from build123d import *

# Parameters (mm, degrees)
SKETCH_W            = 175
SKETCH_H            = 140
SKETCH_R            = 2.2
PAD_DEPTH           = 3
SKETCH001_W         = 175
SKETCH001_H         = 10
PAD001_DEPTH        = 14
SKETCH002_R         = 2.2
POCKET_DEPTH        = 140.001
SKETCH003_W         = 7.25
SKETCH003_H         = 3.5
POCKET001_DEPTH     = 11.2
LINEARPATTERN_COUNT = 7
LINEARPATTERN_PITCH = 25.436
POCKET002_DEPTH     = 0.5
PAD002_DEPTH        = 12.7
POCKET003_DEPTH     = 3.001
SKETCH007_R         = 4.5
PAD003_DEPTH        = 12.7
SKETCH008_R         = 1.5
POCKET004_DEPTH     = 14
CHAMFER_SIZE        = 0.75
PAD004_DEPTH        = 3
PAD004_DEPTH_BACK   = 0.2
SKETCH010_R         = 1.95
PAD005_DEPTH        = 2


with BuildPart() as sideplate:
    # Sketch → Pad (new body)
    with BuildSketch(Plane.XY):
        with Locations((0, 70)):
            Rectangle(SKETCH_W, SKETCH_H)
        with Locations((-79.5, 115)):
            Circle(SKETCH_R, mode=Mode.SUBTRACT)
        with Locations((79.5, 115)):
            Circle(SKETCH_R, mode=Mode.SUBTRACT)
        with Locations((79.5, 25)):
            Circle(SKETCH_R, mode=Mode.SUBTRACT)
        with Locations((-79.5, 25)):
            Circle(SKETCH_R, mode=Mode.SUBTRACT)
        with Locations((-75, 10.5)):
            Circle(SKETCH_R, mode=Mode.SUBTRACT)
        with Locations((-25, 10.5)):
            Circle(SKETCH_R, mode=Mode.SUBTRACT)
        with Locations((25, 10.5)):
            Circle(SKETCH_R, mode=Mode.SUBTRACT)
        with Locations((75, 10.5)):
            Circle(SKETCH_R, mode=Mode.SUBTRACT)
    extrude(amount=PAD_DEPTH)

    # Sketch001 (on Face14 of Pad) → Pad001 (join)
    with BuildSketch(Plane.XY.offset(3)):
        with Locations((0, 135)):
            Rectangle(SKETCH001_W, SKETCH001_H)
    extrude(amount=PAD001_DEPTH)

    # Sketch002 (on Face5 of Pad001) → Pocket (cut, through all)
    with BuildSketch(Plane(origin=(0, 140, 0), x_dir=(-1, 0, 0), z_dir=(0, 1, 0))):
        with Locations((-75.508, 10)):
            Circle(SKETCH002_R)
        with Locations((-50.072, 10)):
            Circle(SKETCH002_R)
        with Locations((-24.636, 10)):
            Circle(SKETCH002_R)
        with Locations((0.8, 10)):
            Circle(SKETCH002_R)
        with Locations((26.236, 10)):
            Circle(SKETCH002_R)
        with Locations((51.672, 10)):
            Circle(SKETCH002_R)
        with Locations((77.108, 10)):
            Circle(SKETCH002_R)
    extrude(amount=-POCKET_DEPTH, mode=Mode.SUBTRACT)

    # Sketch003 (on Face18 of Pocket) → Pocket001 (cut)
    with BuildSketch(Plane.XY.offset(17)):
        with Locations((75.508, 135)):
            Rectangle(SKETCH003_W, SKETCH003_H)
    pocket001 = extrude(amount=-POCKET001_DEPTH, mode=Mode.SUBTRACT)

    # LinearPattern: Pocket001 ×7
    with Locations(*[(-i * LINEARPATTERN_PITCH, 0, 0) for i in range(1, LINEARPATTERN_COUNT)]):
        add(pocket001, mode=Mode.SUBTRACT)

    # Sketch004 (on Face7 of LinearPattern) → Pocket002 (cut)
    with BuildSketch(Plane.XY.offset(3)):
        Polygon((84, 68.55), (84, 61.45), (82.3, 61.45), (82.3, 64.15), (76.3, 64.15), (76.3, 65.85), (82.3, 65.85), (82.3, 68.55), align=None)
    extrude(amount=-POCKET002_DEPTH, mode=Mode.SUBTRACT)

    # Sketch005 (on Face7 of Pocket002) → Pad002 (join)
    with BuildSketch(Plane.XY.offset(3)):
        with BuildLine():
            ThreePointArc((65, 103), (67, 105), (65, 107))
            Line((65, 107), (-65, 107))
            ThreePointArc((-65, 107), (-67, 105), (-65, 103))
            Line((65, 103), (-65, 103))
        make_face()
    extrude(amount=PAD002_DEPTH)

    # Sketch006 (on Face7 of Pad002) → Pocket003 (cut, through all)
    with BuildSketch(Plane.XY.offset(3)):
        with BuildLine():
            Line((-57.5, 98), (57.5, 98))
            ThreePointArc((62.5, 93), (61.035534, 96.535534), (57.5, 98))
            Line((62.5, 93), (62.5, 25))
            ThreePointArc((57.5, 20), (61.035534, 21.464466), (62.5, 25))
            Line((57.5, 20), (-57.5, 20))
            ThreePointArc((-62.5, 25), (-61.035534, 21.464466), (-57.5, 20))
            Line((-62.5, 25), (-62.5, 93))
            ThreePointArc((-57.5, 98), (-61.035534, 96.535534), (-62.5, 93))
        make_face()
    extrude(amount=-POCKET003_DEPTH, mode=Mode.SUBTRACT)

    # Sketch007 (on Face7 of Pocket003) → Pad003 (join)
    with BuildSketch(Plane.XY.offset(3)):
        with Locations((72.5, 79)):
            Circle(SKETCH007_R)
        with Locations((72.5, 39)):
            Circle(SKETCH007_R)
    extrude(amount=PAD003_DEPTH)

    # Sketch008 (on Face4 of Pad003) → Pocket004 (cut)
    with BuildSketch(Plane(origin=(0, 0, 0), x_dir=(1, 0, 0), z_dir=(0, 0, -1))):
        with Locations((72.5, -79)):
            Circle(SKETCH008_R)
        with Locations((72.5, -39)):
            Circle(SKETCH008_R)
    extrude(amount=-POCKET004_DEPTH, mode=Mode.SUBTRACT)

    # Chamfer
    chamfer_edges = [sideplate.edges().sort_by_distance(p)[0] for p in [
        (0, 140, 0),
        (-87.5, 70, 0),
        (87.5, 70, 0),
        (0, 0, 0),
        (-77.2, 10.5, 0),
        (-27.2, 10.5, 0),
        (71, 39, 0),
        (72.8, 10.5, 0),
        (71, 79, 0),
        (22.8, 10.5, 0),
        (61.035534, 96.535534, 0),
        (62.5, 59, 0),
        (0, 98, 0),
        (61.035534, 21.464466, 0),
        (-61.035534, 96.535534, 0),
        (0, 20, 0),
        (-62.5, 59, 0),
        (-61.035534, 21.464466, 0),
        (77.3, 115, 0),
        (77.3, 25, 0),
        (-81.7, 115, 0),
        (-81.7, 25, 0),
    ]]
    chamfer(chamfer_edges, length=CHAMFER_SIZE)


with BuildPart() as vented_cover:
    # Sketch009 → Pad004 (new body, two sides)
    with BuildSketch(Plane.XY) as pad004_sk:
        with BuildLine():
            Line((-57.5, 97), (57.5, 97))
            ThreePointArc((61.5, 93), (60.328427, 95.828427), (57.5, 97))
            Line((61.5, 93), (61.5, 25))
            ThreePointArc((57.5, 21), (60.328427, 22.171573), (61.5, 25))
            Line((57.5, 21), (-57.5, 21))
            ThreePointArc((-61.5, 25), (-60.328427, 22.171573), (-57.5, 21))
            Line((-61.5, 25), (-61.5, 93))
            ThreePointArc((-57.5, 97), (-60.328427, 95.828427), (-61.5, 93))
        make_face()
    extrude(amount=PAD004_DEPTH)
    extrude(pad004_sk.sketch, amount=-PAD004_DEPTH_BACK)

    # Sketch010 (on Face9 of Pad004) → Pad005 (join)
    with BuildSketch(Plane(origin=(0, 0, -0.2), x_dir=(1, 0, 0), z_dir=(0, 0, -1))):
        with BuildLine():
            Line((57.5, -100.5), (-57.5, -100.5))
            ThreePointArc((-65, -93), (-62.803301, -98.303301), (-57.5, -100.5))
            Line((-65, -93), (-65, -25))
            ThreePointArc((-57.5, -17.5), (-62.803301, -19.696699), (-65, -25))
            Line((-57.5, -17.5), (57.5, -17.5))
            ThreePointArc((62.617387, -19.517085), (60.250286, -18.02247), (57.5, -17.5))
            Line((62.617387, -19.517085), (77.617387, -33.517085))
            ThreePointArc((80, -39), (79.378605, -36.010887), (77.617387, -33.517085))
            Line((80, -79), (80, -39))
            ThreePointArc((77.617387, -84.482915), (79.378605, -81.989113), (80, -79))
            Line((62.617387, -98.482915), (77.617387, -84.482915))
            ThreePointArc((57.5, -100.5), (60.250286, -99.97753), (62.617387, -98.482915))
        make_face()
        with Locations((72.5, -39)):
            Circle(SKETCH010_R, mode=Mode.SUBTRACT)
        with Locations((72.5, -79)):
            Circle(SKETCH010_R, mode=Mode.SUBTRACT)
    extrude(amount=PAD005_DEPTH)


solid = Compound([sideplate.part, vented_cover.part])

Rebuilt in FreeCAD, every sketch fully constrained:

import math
import FreeCAD as App
import Part
import Sketcher
from FreeCAD import Vector
Q = App.Units.Quantity


def edges_at(feature, points):
    """Names of the edges that pass closest to the given points."""
    edges = feature.Shape.Edges
    near = lambda p: min(range(len(edges)), key=lambda i: edges[i].distToShape(Part.Vertex(*p))[0])
    return sorted({f"Edge{near(p) + 1}" for p in points})


def add_polygon(sketch, points):
    """Adds a closed chain of lines whose ends are joined by coincident constraints."""
    first, n = sketch.GeometryCount, len(points)
    for a, b in zip(points, points[1:] + points[:1]):
        sketch.addGeometry(Part.LineSegment(App.Vector(*a, 0), App.Vector(*b, 0)), False)
    for i in range(n):
        sketch.addConstraint(Sketcher.Constraint("Coincident", first + i, 2, first + (i + 1) % n, 1))

doc = App.newDocument("Part")
body = doc.addObject("PartDesign::Body", "Body")

sketch1 = body.newObject("Sketcher::SketchObject", "Sketch")
sketch1.AttachmentSupport = (doc.getObject("XY_Plane"), [""])
sketch1.MapMode = "FlatFace"
add_polygon(sketch1, [(-87.5, 140), (-87.5, 0), (87.5, 0), (87.5, 140)])
sketch1.addGeometry(Part.Circle(Vector(-75, 10.5, 0), Vector(0, 0, 1), 2.2), False)
sketch1.addGeometry(Part.Circle(Vector(-79.5, 25, 0), Vector(0, 0, 1), 2.2), False)
sketch1.addGeometry(Part.Circle(Vector(-25, 10.5, 0), Vector(0, 0, 1), 2.2), False)
sketch1.addGeometry(Part.Circle(Vector(25, 10.5, 0), Vector(0, 0, 1), 2.2), False)
sketch1.addGeometry(Part.Circle(Vector(75, 10.5, 0), Vector(0, 0, 1), 2.2), False)
sketch1.addGeometry(Part.Circle(Vector(79.5, 25, 0), Vector(0, 0, 1), 2.2), False)
sketch1.addGeometry(Part.Circle(Vector(-79.5, 115, 0), Vector(0, 0, 1), 2.2), False)
sketch1.addGeometry(Part.Circle(Vector(79.5, 115, 0), Vector(0, 0, 1), 2.2), False)
sketch1.addConstraint([
    Sketcher.Constraint("Vertical", 0),
    Sketcher.Constraint("Horizontal", 1),
    Sketcher.Constraint("Vertical", 2),
    Sketcher.Constraint("Horizontal", 3),
    Sketcher.Constraint("Equal", 4, 5),
    Sketcher.Constraint("Equal", 5, 6),
    Sketcher.Constraint("Equal", 6, 7),
    Sketcher.Constraint("Equal", 7, 8),
    Sketcher.Constraint("Equal", 8, 9),
    Sketcher.Constraint("Equal", 9, 10),
    Sketcher.Constraint("Equal", 10, 11),
    Sketcher.Constraint("Symmetric", 0, 2, 1, 2, -1, 1),
    Sketcher.Constraint("Symmetric", 6, 3, 7, 3, -2),
    Sketcher.Constraint("Symmetric", 4, 3, 8, 3, -2),
    Sketcher.Constraint("Symmetric", 5, 3, 9, 3, -2),
    Sketcher.Constraint("Symmetric", 10, 3, 11, 3, -2),
    Sketcher.Constraint("Horizontal", 4, 3, 6, 3),
    Sketcher.Constraint("Vertical", 5, 3, 10, 3),
    Sketcher.Constraint("Diameter", 4, Q("4.4 mm")),
    Sketcher.Constraint("DistanceX", 1, 1, 1, 2, Q("175 mm")),
    Sketcher.Constraint("DistanceY", 0, 2, 0, 1, Q("140 mm")),
    Sketcher.Constraint("DistanceX", 4, 3, -1, 1, Q("75 mm")),
    Sketcher.Constraint("DistanceY", -1, 1, 5, 3, Q("25 mm")),
    Sketcher.Constraint("DistanceX", 6, 3, -1, 1, Q("25 mm")),
    Sketcher.Constraint("DistanceY", -1, 1, 10, 3, Q("115 mm")),
    Sketcher.Constraint("DistanceX", 5, 3, 9, 3, Q("159 mm")),
    Sketcher.Constraint("DistanceY", -1, 1, 4, 3, Q("10.5 mm")),
])
pad1 = body.newObject("PartDesign::Pad", "Pad")
pad1.Profile = sketch1
pad1.Length = 3

sketch2 = body.newObject("Sketcher::SketchObject", "Sketch001")
sketch2.AttachmentSupport = (doc.getObject("XY_Plane"), [""])
sketch2.MapMode = "FlatFace"
sketch2.AttachmentOffset = App.Placement(Vector(0, 0, 3), App.Rotation())
add_polygon(sketch2, [(-87.5, 140), (-87.5, 130), (87.5, 130), (87.5, 140)])
sketch2.addConstraint([
    Sketcher.Constraint("Vertical", 0),
    Sketcher.Constraint("Horizontal", 1),
    Sketcher.Constraint("Vertical", 2),
    Sketcher.Constraint("Horizontal", 3),
    Sketcher.Constraint("DistanceX", 1, 1, 1, 2, Q("175 mm")),
    Sketcher.Constraint("DistanceY", 0, 2, 0, 1, Q("10 mm")),
    Sketcher.Constraint("DistanceY", -1, 1, 0, 2, Q("130 mm")),
    Sketcher.Constraint("DistanceX", 0, 2, -1, 1, Q("87.5 mm")),
])
pad2 = body.newObject("PartDesign::Pad", "Pad001")
pad2.Profile = sketch2
pad2.Length = 14

sketch3 = body.newObject("Sketcher::SketchObject", "Sketch002")
sketch3.AttachmentSupport = (doc.getObject("XZ_Plane"), [""])
sketch3.MapMode = "FlatFace"
sketch3.AttachmentOffset = App.Placement(Vector(0, 0, -140), App.Rotation())
sketch3.addGeometry([
    Part.Circle(Vector(75.508, 10, 0), Vector(0, 0, 1), 2.2),
    Part.Circle(Vector(50.072, 10, 0), Vector(0, 0, 1), 2.2),
    Part.Circle(Vector(24.636, 10, 0), Vector(0, 0, 1), 2.2),
    Part.Circle(Vector(-0.8, 10, 0), Vector(0, 0, 1), 2.2),
    Part.Circle(Vector(-26.236, 10, 0), Vector(0, 0, 1), 2.2),
    Part.Circle(Vector(-51.672, 10, 0), Vector(0, 0, 1), 2.2),
    Part.Circle(Vector(-77.108, 10, 0), Vector(0, 0, 1), 2.2),
], False)
sketch3.addConstraint([
    Sketcher.Constraint("Equal", 0, 1),
    Sketcher.Constraint("Equal", 1, 2),
    Sketcher.Constraint("Equal", 2, 3),
    Sketcher.Constraint("Equal", 3, 4),
    Sketcher.Constraint("Equal", 4, 5),
    Sketcher.Constraint("Equal", 5, 6),
    Sketcher.Constraint("Horizontal", 0, 3, 1, 3),
    Sketcher.Constraint("Horizontal", 1, 3, 2, 3),
    Sketcher.Constraint("Horizontal", 2, 3, 3, 3),
    Sketcher.Constraint("Horizontal", 3, 3, 4, 3),
    Sketcher.Constraint("Horizontal", 4, 3, 5, 3),
    Sketcher.Constraint("Horizontal", 5, 3, 6, 3),
    Sketcher.Constraint("Diameter", 0, Q("4.4 mm")),
    Sketcher.Constraint("DistanceY", -1, 1, 0, 3, Q("10 mm")),
    Sketcher.Constraint("DistanceX", 3, 3, -1, 1, Q("0.8 mm")),
    Sketcher.Constraint("DistanceX", 5, 3, 0, 3, Q("127.18 mm")),
    Sketcher.Constraint("DistanceX", 6, 3, 1, 3, Q("127.18 mm")),
    Sketcher.Constraint("DistanceX", -1, 1, 0, 3, Q("75.508 mm")),
    Sketcher.Constraint("DistanceX", -1, 1, 1, 3, Q("50.072 mm")),
    Sketcher.Constraint("DistanceX", -1, 1, 2, 3, Q("24.636 mm")),
    Sketcher.Constraint("DistanceX", 4, 3, -1, 1, Q("26.236 mm")),
])
pocket1 = body.newObject("PartDesign::Pocket", "Pocket")
pocket1.Profile = sketch3
pocket1.Type = "ThroughAll"
pocket1.Reversed = True

sketch4 = body.newObject("Sketcher::SketchObject", "Sketch003")
sketch4.AttachmentSupport = (doc.getObject("XY_Plane"), [""])
sketch4.MapMode = "FlatFace"
sketch4.AttachmentOffset = App.Placement(Vector(0, 0, 17), App.Rotation())
add_polygon(sketch4, [(71.883, 136.75), (71.883, 133.25), (79.133, 133.25), (79.133, 136.75)])
sketch4.addConstraint([
    Sketcher.Constraint("Vertical", 0),
    Sketcher.Constraint("Horizontal", 1),
    Sketcher.Constraint("Vertical", 2),
    Sketcher.Constraint("Horizontal", 3),
    Sketcher.Constraint("DistanceY", 0, 2, 0, 1, Q("3.5 mm")),
    Sketcher.Constraint("DistanceX", 1, 1, 1, 2, Q("7.25 mm")),
    Sketcher.Constraint("DistanceY", -1, 1, 0, 2, Q("133.25 mm")),
    Sketcher.Constraint("DistanceX", -1, 1, 0, 2, Q("71.883 mm")),
])
pocket2 = body.newObject("PartDesign::Pocket", "Pocket001")
pocket2.Profile = sketch4
pocket2.Length = 11.2
doc.recompute()

linearpattern = body.newObject("PartDesign::LinearPattern", "LinearPattern")
linearpattern.Originals = [pocket2]
linearpattern.Direction = (doc.getObject("X_Axis"), [""])
linearpattern.Mode = "offset"
linearpattern.Offset = 25.436
linearpattern.Occurrences = 7
linearpattern.Reversed = True
body.Tip = linearpattern

sketch5 = body.newObject("Sketcher::SketchObject", "Sketch004")
sketch5.AttachmentSupport = (doc.getObject("XY_Plane"), [""])
sketch5.MapMode = "FlatFace"
sketch5.AttachmentOffset = App.Placement(Vector(0, 0, 3), App.Rotation())
add_polygon(sketch5, [(84, 61.45), (84, 68.55), (82.3, 68.55), (82.3, 65.85), (76.3, 65.85), (76.3, 64.15), (82.3, 64.15), (82.3, 61.45)])
sketch5.addConstraint([
    Sketcher.Constraint("Vertical", 0),
    Sketcher.Constraint("Horizontal", 1),
    Sketcher.Constraint("Vertical", 2),
    Sketcher.Constraint("Horizontal", 3),
    Sketcher.Constraint("Vertical", 4),
    Sketcher.Constraint("Horizontal", 5),
    Sketcher.Constraint("Vertical", 6),
    Sketcher.Constraint("Horizontal", 7),
    Sketcher.Constraint("Vertical", 2, 2, 5, 2),
    Sketcher.Constraint("Equal", 7, 4),
    Sketcher.Constraint("Equal", 2, 6),
    Sketcher.Constraint("DistanceX", 3, 2, 3, 1, Q("6 mm")),
    Sketcher.Constraint("DistanceX", 1, 2, 1, 1, Q("1.7 mm")),
    Sketcher.Constraint("DistanceY", 0, 1, 0, 2, Q("7.1 mm")),
    Sketcher.Constraint("DistanceX", -1, 1, 0, 2, Q("84 mm")),
    Sketcher.Constraint("DistanceY", -1, 1, 0, 2, Q("68.55 mm")),
])
pocket3 = body.newObject("PartDesign::Pocket", "Pocket002")
pocket3.Profile = sketch5
pocket3.Length = 0.5

sketch6 = body.newObject("Sketcher::SketchObject", "Sketch005")
sketch6.AttachmentSupport = (doc.getObject("XY_Plane"), [""])
sketch6.MapMode = "FlatFace"
sketch6.AttachmentOffset = App.Placement(Vector(0, 0, 3), App.Rotation())
sketch6.addGeometry([
    Part.ArcOfCircle(Part.Circle(Vector(65, 105, 0), Vector(0, 0, 1), 2), math.radians(-90), math.radians(90)),
    Part.LineSegment(Vector(65, 107, 0), Vector(-65, 107, 0)),
    Part.ArcOfCircle(Part.Circle(Vector(-65, 105, 0), Vector(0, 0, 1), 2), math.radians(90), math.radians(270)),
    Part.LineSegment(Vector(-65, 103, 0), Vector(65, 103, 0)),
], False)
sketch6.addConstraint([
    Sketcher.Constraint("Tangent", 0, 2, 1, 1),
    Sketcher.Constraint("Tangent", 1, 2, 2, 1),
    Sketcher.Constraint("Tangent", 2, 2, 3, 1),
    Sketcher.Constraint("Tangent", 3, 2, 0, 1),
    Sketcher.Constraint("Horizontal", 1),
    Sketcher.Constraint("Horizontal", 3),
    Sketcher.Constraint("Radius", 0, Q("2 mm")),
    Sketcher.Constraint("DistanceX", 1, 2, 1, 1, Q("130 mm")),
    Sketcher.Constraint("DistanceX", -1, 1, 0, 3, Q("65 mm")),
    Sketcher.Constraint("DistanceY", -1, 1, 0, 3, Q("105 mm")),
])
pad3 = body.newObject("PartDesign::Pad", "Pad002")
pad3.Profile = sketch6
pad3.Length = 12.7

sketch7 = body.newObject("Sketcher::SketchObject", "Sketch006")
sketch7.AttachmentSupport = (doc.getObject("XY_Plane"), [""])
sketch7.MapMode = "FlatFace"
sketch7.AttachmentOffset = App.Placement(Vector(0, 0, 3), App.Rotation())
sketch7.addGeometry([
    Part.LineSegment(Vector(57.5, 98, 0), Vector(-57.5, 98, 0)),
    Part.ArcOfCircle(Part.Circle(Vector(-57.5, 93, 0), Vector(0, 0, 1), 5), math.radians(89.999996), math.radians(180.000004)),
    Part.LineSegment(Vector(-62.5, 93, 0), Vector(-62.5, 25, 0)),
    Part.ArcOfCircle(Part.Circle(Vector(-57.5, 25, 0), Vector(0, 0, 1), 5), math.radians(179.999996), math.radians(270.000004)),
    Part.LineSegment(Vector(-57.5, 20, 0), Vector(57.5, 20, 0)),
    Part.ArcOfCircle(Part.Circle(Vector(57.5, 25, 0), Vector(0, 0, 1), 5), math.radians(-90.000004), math.radians(0.000004)),
    Part.LineSegment(Vector(62.5, 25, 0), Vector(62.5, 93, 0)),
    Part.ArcOfCircle(Part.Circle(Vector(57.5, 93, 0), Vector(0, 0, 1), 5), math.radians(-0.000004), math.radians(90.000004)),
], False)
sketch7.addConstraint([
    Sketcher.Constraint("Tangent", 0, 2, 1, 1),
    Sketcher.Constraint("Tangent", 1, 2, 2, 1),
    Sketcher.Constraint("Tangent", 2, 2, 3, 1),
    Sketcher.Constraint("Tangent", 3, 2, 4, 1),
    Sketcher.Constraint("Tangent", 4, 2, 5, 1),
    Sketcher.Constraint("Tangent", 5, 2, 6, 1),
    Sketcher.Constraint("Tangent", 6, 2, 7, 1),
    Sketcher.Constraint("Tangent", 7, 2, 0, 1),
    Sketcher.Constraint("Horizontal", 0),
    Sketcher.Constraint("Vertical", 2),
    Sketcher.Constraint("Horizontal", 4),
    Sketcher.Constraint("Vertical", 6),
    Sketcher.Constraint("Equal", 1, 3),
    Sketcher.Constraint("Equal", 3, 5),
    Sketcher.Constraint("Equal", 5, 7),
    Sketcher.Constraint("Radius", 1, Q("5 mm")),
    Sketcher.Constraint("DistanceX", 0, 2, 0, 1, Q("115 mm")),
    Sketcher.Constraint("DistanceY", 2, 2, 2, 1, Q("68 mm")),
    Sketcher.Constraint("DistanceY", -1, 1, 1, 3, Q("93 mm")),
    Sketcher.Constraint("DistanceX", 1, 3, -1, 1, Q("57.5 mm")),
])
pocket4 = body.newObject("PartDesign::Pocket", "Pocket003")
pocket4.Profile = sketch7
pocket4.Type = "ThroughAll"

sketch8 = body.newObject("Sketcher::SketchObject", "Sketch007")
sketch8.AttachmentSupport = (doc.getObject("XY_Plane"), [""])
sketch8.MapMode = "FlatFace"
sketch8.AttachmentOffset = App.Placement(Vector(0, 0, 3), App.Rotation())
sketch8.addGeometry([
    Part.Circle(Vector(72.5, 79, 0), Vector(0, 0, 1), 4.5),
    Part.Circle(Vector(72.5, 39, 0), Vector(0, 0, 1), 4.5),
], False)
sketch8.addConstraint([
    Sketcher.Constraint("Equal", 0, 1),
    Sketcher.Constraint("Vertical", 0, 3, 1, 3),
    Sketcher.Constraint("Diameter", 0, Q("9 mm")),
    Sketcher.Constraint("DistanceY", -1, 1, 0, 3, Q("79 mm")),
    Sketcher.Constraint("DistanceY", -1, 1, 1, 3, Q("39 mm")),
    Sketcher.Constraint("DistanceX", -1, 1, 0, 3, Q("72.5 mm")),
])
pad4 = body.newObject("PartDesign::Pad", "Pad003")
pad4.Profile = sketch8
pad4.Length = 12.7

sketch9 = body.newObject("Sketcher::SketchObject", "Sketch008")
sketch9.AttachmentSupport = (doc.getObject("XY_Plane"), [""])
sketch9.MapMode = "FlatFace"
sketch9.addGeometry([
    Part.Circle(Vector(72.5, 79, 0), Vector(0, 0, 1), 1.5),
    Part.Circle(Vector(72.5, 39, 0), Vector(0, 0, 1), 1.5),
], False)
sketch9.addConstraint([
    Sketcher.Constraint("Equal", 0, 1),
    Sketcher.Constraint("Vertical", 0, 3, 1, 3),
    Sketcher.Constraint("Diameter", 0, Q("3 mm")),
    Sketcher.Constraint("DistanceY", -1, 1, 0, 3, Q("79 mm")),
    Sketcher.Constraint("DistanceY", -1, 1, 1, 3, Q("39 mm")),
    Sketcher.Constraint("DistanceX", -1, 1, 0, 3, Q("72.5 mm")),
])
pocket5 = body.newObject("PartDesign::Pocket", "Pocket004")
pocket5.Profile = sketch9
pocket5.Length = 14
pocket5.Reversed = True
doc.recompute()

chamfer = body.newObject("PartDesign::Chamfer", "Chamfer")
chamfer.Base = (pocket5, edges_at(pocket5, [
    (0, 140, 0),
    (-87.5, 70, 0),
    (87.5, 70, 0),
    (0, 0, 0),
    (-77.2, 10.5, 0),
    (-27.2, 10.5, 0),
    (71, 39, 0),
    (72.8, 10.5, 0),
    (71, 79, 0),
    (22.8, 10.5, 0),
    (61.036, 96.536, 0),
    (62.5, 59, 0),
    (0, 98, 0),
    (61.036, 21.464, 0),
    (-61.036, 96.536, 0),
    (0, 20, 0),
    (-62.5, 59, 0),
    (-61.036, 21.464, 0),
    (77.3, 115, 0),
    (77.3, 25, 0),
    (-81.7, 115, 0),
    (-81.7, 25, 0),
]))
chamfer.Size = 0.75
body2 = doc.addObject("PartDesign::Body", "Body001")

sketch10 = body2.newObject("Sketcher::SketchObject", "Sketch009")
sketch10.AttachmentSupport = (doc.getObject("XY_Plane001"), [""])
sketch10.MapMode = "FlatFace"
sketch10.addGeometry([
    Part.LineSegment(Vector(57.5, 97, 0), Vector(-57.5, 97, 0)),
    Part.ArcOfCircle(Part.Circle(Vector(-57.5, 93, 0), Vector(0, 0, 1), 4), math.radians(90.000006), math.radians(179.999994)),
    Part.LineSegment(Vector(-61.5, 93, 0), Vector(-61.5, 25, 0)),
    Part.ArcOfCircle(Part.Circle(Vector(-57.5, 25, 0), Vector(0, 0, 1), 4), math.radians(-179.999994), math.radians(-90.000006)),
    Part.LineSegment(Vector(-57.5, 21, 0), Vector(57.5, 21, 0)),
    Part.ArcOfCircle(Part.Circle(Vector(57.5, 25, 0), Vector(0, 0, 1), 4), math.radians(-89.999994), math.radians(-0.000006)),
    Part.LineSegment(Vector(61.5, 25, 0), Vector(61.5, 93, 0)),
    Part.ArcOfCircle(Part.Circle(Vector(57.5, 93, 0), Vector(0, 0, 1), 4), math.radians(0.000006), math.radians(89.999994)),
], False)
sketch10.addConstraint([
    Sketcher.Constraint("Tangent", 0, 2, 1, 1),
    Sketcher.Constraint("Tangent", 1, 2, 2, 1),
    Sketcher.Constraint("Tangent", 2, 2, 3, 1),
    Sketcher.Constraint("Tangent", 3, 2, 4, 1),
    Sketcher.Constraint("Tangent", 4, 2, 5, 1),
    Sketcher.Constraint("Tangent", 5, 2, 6, 1),
    Sketcher.Constraint("Tangent", 6, 2, 7, 1),
    Sketcher.Constraint("Tangent", 7, 2, 0, 1),
    Sketcher.Constraint("Horizontal", 0),
    Sketcher.Constraint("Vertical", 2),
    Sketcher.Constraint("Horizontal", 4),
    Sketcher.Constraint("Vertical", 6),
    Sketcher.Constraint("Equal", 1, 3),
    Sketcher.Constraint("Equal", 3, 5),
    Sketcher.Constraint("Equal", 5, 7),
    Sketcher.Constraint("Radius", 1, Q("4 mm")),
    Sketcher.Constraint("DistanceX", 0, 2, 0, 1, Q("115 mm")),
    Sketcher.Constraint("DistanceY", 2, 2, 2, 1, Q("68 mm")),
    Sketcher.Constraint("DistanceY", -1, 1, 1, 3, Q("93 mm")),
    Sketcher.Constraint("DistanceX", 1, 3, -1, 1, Q("57.5 mm")),
])
pad5 = body2.newObject("PartDesign::Pad", "Pad004")
pad5.Profile = sketch10
pad5.Type = "TwoLengths"
pad5.Length = 3
pad5.Length2 = 0.2

sketch11 = body2.newObject("Sketcher::SketchObject", "Sketch010")
sketch11.AttachmentSupport = (doc.getObject("XY_Plane001"), [""])
sketch11.MapMode = "FlatFace"
sketch11.AttachmentOffset = App.Placement(Vector(0, 0, -0.2), App.Rotation())
sketch11.addGeometry([
    Part.LineSegment(Vector(-57.5, 100.5, 0), Vector(57.5, 100.5, 0)),
    Part.ArcOfCircle(Part.Circle(Vector(57.499999, 92.999995, 0), Vector(0, 0, 1), 7.500005), math.radians(46.974954), math.radians(89.99999)),
    Part.LineSegment(Vector(62.617387, 98.482915, 0), Vector(77.617387, 84.482915, 0)),
    Part.ArcOfCircle(Part.Circle(Vector(72.5, 79, 0), Vector(0, 0, 1), 7.5), math.radians(-0.000004), math.radians(46.974932)),
    Part.LineSegment(Vector(80, 79, 0), Vector(80, 39, 0)),
    Part.ArcOfCircle(Part.Circle(Vector(72.5, 39, 0), Vector(0, 0, 1), 7.5), math.radians(-46.974932), math.radians(0.000004)),
    Part.LineSegment(Vector(77.617387, 33.517085, 0), Vector(62.617387, 19.517085, 0)),
    Part.ArcOfCircle(Part.Circle(Vector(57.499999, 25.000005, 0), Vector(0, 0, 1), 7.500005), math.radians(-89.99999), math.radians(-46.974954)),
    Part.LineSegment(Vector(57.5, 17.5, 0), Vector(-57.5, 17.5, 0)),
    Part.ArcOfCircle(Part.Circle(Vector(-57.5, 25, 0), Vector(0, 0, 1), 7.5), math.radians(179.999996), math.radians(270.000004)),
    Part.LineSegment(Vector(-65, 25, 0), Vector(-65, 93, 0)),
    Part.ArcOfCircle(Part.Circle(Vector(-57.5, 93, 0), Vector(0, 0, 1), 7.5), math.radians(89.999996), math.radians(180.000004)),
    Part.Circle(Vector(72.5, 79, 0), Vector(0, 0, 1), 1.95),
    Part.Circle(Vector(72.5, 39, 0), Vector(0, 0, 1), 1.95),
], False)
sketch11.addConstraint([
    Sketcher.Constraint("Tangent", 0, 2, 1, 2),
    Sketcher.Constraint("Tangent", 1, 1, 2, 1),
    Sketcher.Constraint("Tangent", 2, 2, 3, 2),
    Sketcher.Constraint("Tangent", 3, 1, 4, 1),
    Sketcher.Constraint("Tangent", 4, 2, 5, 2),
    Sketcher.Constraint("Tangent", 5, 1, 6, 1),
    Sketcher.Constraint("Tangent", 6, 2, 7, 2),
    Sketcher.Constraint("Tangent", 7, 1, 8, 1),
    Sketcher.Constraint("Tangent", 8, 2, 9, 2),
    Sketcher.Constraint("Tangent", 9, 1, 10, 1),
    Sketcher.Constraint("Tangent", 10, 2, 11, 2),
    Sketcher.Constraint("Tangent", 11, 1, 0, 1),
    Sketcher.Constraint("Horizontal", 0),
    Sketcher.Constraint("Vertical", 4),
    Sketcher.Constraint("Horizontal", 8),
    Sketcher.Constraint("Vertical", 10),
    Sketcher.Constraint("Coincident", 12, 3, 3, 3),
    Sketcher.Constraint("Coincident", 13, 3, 5, 3),
    Sketcher.Constraint("Equal", 3, 5),
    Sketcher.Constraint("Equal", 1, 7),
    Sketcher.Constraint("Equal", 5, 9),
    Sketcher.Constraint("Equal", 9, 11),
    Sketcher.Constraint("Equal", 12, 13),
    Sketcher.Constraint("Symmetric", 7, 3, 9, 3, -2),
    Sketcher.Constraint("Vertical", 1, 3, 7, 3),
    Sketcher.Constraint("Vertical", 2, 2, 5, 1),
    Sketcher.Constraint("Diameter", 12, Q("3.9 mm")),
    Sketcher.Constraint("Radius", 3, Q("7.5 mm")),
    Sketcher.Constraint("DistanceX", 0, 1, 0, 2, Q("115 mm")),
    Sketcher.Constraint("DistanceY", 4, 2, 4, 1, Q("40 mm")),
    Sketcher.Constraint("DistanceY", 10, 1, 10, 2, Q("68 mm")),
    Sketcher.Constraint("DistanceY", -1, 1, 3, 3, Q("79 mm")),
    Sketcher.Constraint("DistanceX", -1, 1, 3, 1, Q("80 mm")),
])
pad6 = body2.newObject("PartDesign::Pad", "Pad005")
pad6.Profile = sketch11
pad6.Length = 2
pad6.Reversed = True

doc.recompute()
